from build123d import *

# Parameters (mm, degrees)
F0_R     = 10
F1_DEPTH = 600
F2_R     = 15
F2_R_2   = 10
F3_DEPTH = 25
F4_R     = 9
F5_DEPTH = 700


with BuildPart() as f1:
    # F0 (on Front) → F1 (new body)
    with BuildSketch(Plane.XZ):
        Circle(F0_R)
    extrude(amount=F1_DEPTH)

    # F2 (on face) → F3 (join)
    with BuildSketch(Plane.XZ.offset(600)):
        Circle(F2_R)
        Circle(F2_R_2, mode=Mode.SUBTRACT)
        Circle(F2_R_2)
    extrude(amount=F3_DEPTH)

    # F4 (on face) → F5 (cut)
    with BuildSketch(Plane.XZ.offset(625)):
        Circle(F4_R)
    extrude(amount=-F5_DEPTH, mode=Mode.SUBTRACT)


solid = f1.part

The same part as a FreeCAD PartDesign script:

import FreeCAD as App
import Part
import Sketcher
from FreeCAD import Vector

doc = App.newDocument("Part")
body = doc.addObject("PartDesign::Body", "Body")

sketch1 = doc.addObject("Sketcher::SketchObject", "Sketch")
body.addObject(sketch1)
sketch1.AttachmentSupport = (doc.XZ_Plane, [""])
sketch1.MapMode = "FlatFace"
sketch1.addGeometry(Part.Circle(Vector(0, 0, 0), Vector(0, 0, 1), 10), False)
sketch1.addConstraint([
    Sketcher.Constraint("Coincident", 0, 3, -1, 1),
    Sketcher.Constraint("Diameter", 0, 20.0),
])
pad1 = doc.addObject("PartDesign::Pad", "Pad")
body.addObject(pad1)
pad1.Profile = sketch1
pad1.Length = 600

sketch2 = doc.addObject("Sketcher::SketchObject", "Sketch001")
body.addObject(sketch2)
sketch2.AttachmentSupport = (doc.XZ_Plane, [""])
sketch2.MapMode = "FlatFace"
sketch2.AttachmentOffset = App.Placement(Vector(0, 0, 600), App.Rotation())
sketch2.addGeometry(Part.Circle(Vector(0, 0, 0), Vector(0, 0, 1), 15), False)
sketch2.addConstraint([
    Sketcher.Constraint("Coincident", 0, 3, -1, 1),
    Sketcher.Constraint("Diameter", 0, 30.0),
])
pad2 = doc.addObject("PartDesign::Pad", "Pad001")
body.addObject(pad2)
pad2.Profile = sketch2
pad2.Length = 25

sketch3 = doc.addObject("Sketcher::SketchObject", "Sketch002")
body.addObject(sketch3)
sketch3.AttachmentSupport = (doc.XZ_Plane, [""])
sketch3.MapMode = "FlatFace"
sketch3.AttachmentOffset = App.Placement(Vector(0, 0, 625), App.Rotation())
sketch3.addGeometry(Part.Circle(Vector(0, 0, 0), Vector(0, 0, 1), 9), False)
sketch3.addConstraint([
    Sketcher.Constraint("Coincident", 0, 3, -1, 1),
    Sketcher.Constraint("Diameter", 0, 18.0),
])
pocket1 = doc.addObject("PartDesign::Pocket", "Pocket")
body.addObject(pocket1)
pocket1.Profile = sketch3
pocket1.Length = 700

doc.recompute()
